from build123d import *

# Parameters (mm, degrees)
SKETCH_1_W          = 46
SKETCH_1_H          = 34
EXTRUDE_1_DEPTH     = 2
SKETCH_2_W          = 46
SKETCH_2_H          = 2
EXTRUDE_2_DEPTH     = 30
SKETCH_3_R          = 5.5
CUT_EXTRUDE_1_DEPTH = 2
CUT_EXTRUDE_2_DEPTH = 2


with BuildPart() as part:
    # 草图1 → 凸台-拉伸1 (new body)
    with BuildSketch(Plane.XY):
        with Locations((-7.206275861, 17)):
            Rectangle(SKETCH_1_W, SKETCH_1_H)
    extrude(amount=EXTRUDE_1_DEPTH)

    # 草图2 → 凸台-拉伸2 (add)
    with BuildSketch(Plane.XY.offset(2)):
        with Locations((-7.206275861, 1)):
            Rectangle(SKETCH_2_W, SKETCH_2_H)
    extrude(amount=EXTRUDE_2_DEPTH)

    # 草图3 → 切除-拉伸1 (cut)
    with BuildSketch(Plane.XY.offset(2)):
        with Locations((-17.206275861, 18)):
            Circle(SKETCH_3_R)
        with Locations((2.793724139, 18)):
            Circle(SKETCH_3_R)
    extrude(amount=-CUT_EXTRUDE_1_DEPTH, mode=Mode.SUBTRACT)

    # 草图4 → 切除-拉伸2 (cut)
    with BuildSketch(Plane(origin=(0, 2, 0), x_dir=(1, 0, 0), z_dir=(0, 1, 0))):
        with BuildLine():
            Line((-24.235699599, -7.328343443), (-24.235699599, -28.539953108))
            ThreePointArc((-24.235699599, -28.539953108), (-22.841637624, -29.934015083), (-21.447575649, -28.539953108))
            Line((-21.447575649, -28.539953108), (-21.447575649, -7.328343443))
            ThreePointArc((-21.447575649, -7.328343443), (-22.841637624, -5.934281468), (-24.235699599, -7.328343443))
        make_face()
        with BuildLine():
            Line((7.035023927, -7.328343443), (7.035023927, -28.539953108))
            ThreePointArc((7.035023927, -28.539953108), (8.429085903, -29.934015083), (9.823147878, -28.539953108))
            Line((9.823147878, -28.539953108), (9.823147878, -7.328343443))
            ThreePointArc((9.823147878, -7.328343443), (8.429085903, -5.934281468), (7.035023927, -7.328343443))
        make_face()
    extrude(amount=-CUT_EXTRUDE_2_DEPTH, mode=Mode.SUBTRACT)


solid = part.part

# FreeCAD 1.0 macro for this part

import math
import FreeCAD as App
import Part
import Sketcher
from FreeCAD import Vector
Q = App.Units.Quantity


def add_polygon(sketch, points):
    """Adds a closed chain of lines whose ends are joined by coincident constraints."""
    first, n = sketch.GeometryCount, len(points)
    for a, b in zip(points, points[1:] + points[:1]):
        sketch.addGeometry(Part.LineSegment(App.Vector(*a, 0), App.Vector(*b, 0)), False)
    for i in range(n):
        sketch.addConstraint(Sketcher.Constraint("Coincident", first + i, 2, first + (i + 1) % n, 1))

doc = App.newDocument("Part")
body = doc.addObject("PartDesign::Body", "Body")

sketch1 = body.newObject("Sketcher::SketchObject", "Sketch")
sketch1.AttachmentSupport = (doc.getObject("XY_Plane"), [""])
sketch1.MapMode = "FlatFace"
add_polygon(sketch1, [(-30, 34), (-30, 0), (16, 0), (16, 34)])
sketch1.addConstraint([
    Sketcher.Constraint("Vertical", 0),
    Sketcher.Constraint("Horizontal", 1),
    Sketcher.Constraint("Vertical", 2),
    Sketcher.Constraint("Horizontal", 3),
    Sketcher.Constraint("PointOnObject", 0, 2, -1),
    Sketcher.Constraint("DistanceX", 1, 1, 1, 2, Q("46 mm")),
    Sketcher.Constraint("DistanceY", 0, 2, 0, 1, Q("34 mm")),
    Sketcher.Constraint("DistanceX", 0, 2, -1, 1, Q("30.206276 mm")),
])
pad1 = body.newObject("PartDesign::Pad", "Pad")
pad1.Profile = sketch1
pad1.Length = 2

sketch2 = body.newObject("Sketcher::SketchObject", "Sketch001")
sketch2.AttachmentSupport = (doc.getObject("XY_Plane"), [""])
sketch2.MapMode = "FlatFace"
sketch2.AttachmentOffset = App.Placement(Vector(0, 0, 2), App.Rotation())
add_polygon(sketch2, [(-30.2, 2), (-30.2, 0), (15.8, 0), (15.8, 2)])
sketch2.addConstraint([
    Sketcher.Constraint("Vertical", 0),
    Sketcher.Constraint("Horizontal", 1),
    Sketcher.Constraint("Vertical", 2),
    Sketcher.Constraint("Horizontal", 3),
    Sketcher.Constraint("PointOnObject", 0, 2, -1),
    Sketcher.Constraint("DistanceX", 1, 1, 1, 2, Q("46 mm")),
    Sketcher.Constraint("DistanceY", 0, 2, 0, 1, Q("2 mm")),
    Sketcher.Constraint("DistanceX", 0, 2, -1, 1, Q("30.206276 mm")),
])
pad2 = body.newObject("PartDesign::Pad", "Pad001")
pad2.Profile = sketch2
pad2.Length = 30

sketch3 = body.newObject("Sketcher::SketchObject", "Sketch002")
sketch3.AttachmentSupport = (doc.getObject("XY_Plane"), [""])
sketch3.MapMode = "FlatFace"
sketch3.AttachmentOffset = App.Placement(Vector(0, 0, 2), App.Rotation())
sketch3.addGeometry([
    Part.Circle(Vector(-17, 18, 0), Vector(0, 0, 1), 6),
    Part.Circle(Vector(3, 18, 0), Vector(0, 0, 1), 6),
], False)
sketch3.addConstraint([
    Sketcher.Constraint("Equal", 0, 1),
    Sketcher.Constraint("Horizontal", 0, 3, 1, 3),
    Sketcher.Constraint("Diameter", 0, Q("11 mm")),
    Sketcher.Constraint("DistanceY", -1, 1, 0, 3, Q("18 mm")),
    Sketcher.Constraint("DistanceX", 0, 3, 1, 3, Q("20 mm")),
    Sketcher.Constraint("DistanceX", 0, 3, -1, 1, Q("17.206276 mm")),
])
pocket1 = body.newObject("PartDesign::Pocket", "Pocket")
pocket1.Profile = sketch3
pocket1.Length = 2

sketch4 = body.newObject("Sketcher::SketchObject", "Sketch003")
sketch4.AttachmentSupport = (doc.getObject("XZ_Plane"), [""])
sketch4.MapMode = "FlatFace"
sketch4.AttachmentOffset = App.Placement(Vector(0, 0, -2), App.Rotation())
sketch4.addGeometry([
    Part.LineSegment(Vector(-24.2, 7.3, 0), Vector(-24.2, 28.5, 0)),
    Part.ArcOfCircle(Part.Circle(Vector(-22.8, 28.5, 0), Vector(0, 0, 1), 1.4), math.radians(0), math.radians(180)),
    Part.LineSegment(Vector(-21.4, 28.5, 0), Vector(-21.4, 7.3, 0)),
    Part.ArcOfCircle(Part.Circle(Vector(-22.8, 7.3, 0), Vector(0, 0, 1), 1.4), math.radians(180), math.radians(360)),
    Part.LineSegment(Vector(7, 7.3, 0), Vector(7, 28.5, 0)),
    Part.ArcOfCircle(Part.Circle(Vector(8.4, 28.5, 0), Vector(0, 0, 1), 1.4), math.radians(0), math.radians(180)),
    Part.LineSegment(Vector(9.8, 28.5, 0), Vector(9.8, 7.3, 0)),
    Part.ArcOfCircle(Part.Circle(Vector(8.4, 7.3, 0), Vector(0, 0, 1), 1.4), math.radians(180), math.radians(360)),
], False)
sketch4.addConstraint([
    Sketcher.Constraint("Tangent", 0, 2, 1, 2),
    Sketcher.Constraint("Tangent", 1, 1, 2, 1),
    Sketcher.Constraint("Tangent", 2, 2, 3, 2),
    Sketcher.Constraint("Tangent", 3, 1, 0, 1),
    Sketcher.Constraint("Tangent", 4, 2, 5, 2),
    Sketcher.Constraint("Tangent", 5, 1, 6, 1),
    Sketcher.Constraint("Tangent", 6, 2, 7, 2),
    Sketcher.Constraint("Tangent", 7, 1, 4, 1),
    Sketcher.Constraint("Vertical", 0),
    Sketcher.Constraint("Vertical", 2),
    Sketcher.Constraint("Vertical", 4),
    Sketcher.Constraint("Vertical", 6),
    Sketcher.Constraint("Equal", 3, 5),
    Sketcher.Constraint("Horizontal", 1, 3, 5, 3),
    Sketcher.Constraint("Horizontal", 3, 3, 7, 3),
    Sketcher.Constraint("Radius", 1, Q("1.394062 mm")),
    Sketcher.Constraint("DistanceY", 0, 1, 0, 2, Q("21.21161 mm")),
    Sketcher.Constraint("DistanceX", 0, 2, -1, 1, Q("24.2357 mm")),
    Sketcher.Constraint("DistanceX", 1, 1, 4, 2, Q("28.4826 mm")),
    Sketcher.Constraint("DistanceY", -1, 1, 1, 3, Q("28.539953 mm")),
])
pocket2 = body.newObject("PartDesign::Pocket", "Pocket001")
pocket2.Profile = sketch4
pocket2.Length = 2
pocket2.Reversed = True

doc.recompute()
